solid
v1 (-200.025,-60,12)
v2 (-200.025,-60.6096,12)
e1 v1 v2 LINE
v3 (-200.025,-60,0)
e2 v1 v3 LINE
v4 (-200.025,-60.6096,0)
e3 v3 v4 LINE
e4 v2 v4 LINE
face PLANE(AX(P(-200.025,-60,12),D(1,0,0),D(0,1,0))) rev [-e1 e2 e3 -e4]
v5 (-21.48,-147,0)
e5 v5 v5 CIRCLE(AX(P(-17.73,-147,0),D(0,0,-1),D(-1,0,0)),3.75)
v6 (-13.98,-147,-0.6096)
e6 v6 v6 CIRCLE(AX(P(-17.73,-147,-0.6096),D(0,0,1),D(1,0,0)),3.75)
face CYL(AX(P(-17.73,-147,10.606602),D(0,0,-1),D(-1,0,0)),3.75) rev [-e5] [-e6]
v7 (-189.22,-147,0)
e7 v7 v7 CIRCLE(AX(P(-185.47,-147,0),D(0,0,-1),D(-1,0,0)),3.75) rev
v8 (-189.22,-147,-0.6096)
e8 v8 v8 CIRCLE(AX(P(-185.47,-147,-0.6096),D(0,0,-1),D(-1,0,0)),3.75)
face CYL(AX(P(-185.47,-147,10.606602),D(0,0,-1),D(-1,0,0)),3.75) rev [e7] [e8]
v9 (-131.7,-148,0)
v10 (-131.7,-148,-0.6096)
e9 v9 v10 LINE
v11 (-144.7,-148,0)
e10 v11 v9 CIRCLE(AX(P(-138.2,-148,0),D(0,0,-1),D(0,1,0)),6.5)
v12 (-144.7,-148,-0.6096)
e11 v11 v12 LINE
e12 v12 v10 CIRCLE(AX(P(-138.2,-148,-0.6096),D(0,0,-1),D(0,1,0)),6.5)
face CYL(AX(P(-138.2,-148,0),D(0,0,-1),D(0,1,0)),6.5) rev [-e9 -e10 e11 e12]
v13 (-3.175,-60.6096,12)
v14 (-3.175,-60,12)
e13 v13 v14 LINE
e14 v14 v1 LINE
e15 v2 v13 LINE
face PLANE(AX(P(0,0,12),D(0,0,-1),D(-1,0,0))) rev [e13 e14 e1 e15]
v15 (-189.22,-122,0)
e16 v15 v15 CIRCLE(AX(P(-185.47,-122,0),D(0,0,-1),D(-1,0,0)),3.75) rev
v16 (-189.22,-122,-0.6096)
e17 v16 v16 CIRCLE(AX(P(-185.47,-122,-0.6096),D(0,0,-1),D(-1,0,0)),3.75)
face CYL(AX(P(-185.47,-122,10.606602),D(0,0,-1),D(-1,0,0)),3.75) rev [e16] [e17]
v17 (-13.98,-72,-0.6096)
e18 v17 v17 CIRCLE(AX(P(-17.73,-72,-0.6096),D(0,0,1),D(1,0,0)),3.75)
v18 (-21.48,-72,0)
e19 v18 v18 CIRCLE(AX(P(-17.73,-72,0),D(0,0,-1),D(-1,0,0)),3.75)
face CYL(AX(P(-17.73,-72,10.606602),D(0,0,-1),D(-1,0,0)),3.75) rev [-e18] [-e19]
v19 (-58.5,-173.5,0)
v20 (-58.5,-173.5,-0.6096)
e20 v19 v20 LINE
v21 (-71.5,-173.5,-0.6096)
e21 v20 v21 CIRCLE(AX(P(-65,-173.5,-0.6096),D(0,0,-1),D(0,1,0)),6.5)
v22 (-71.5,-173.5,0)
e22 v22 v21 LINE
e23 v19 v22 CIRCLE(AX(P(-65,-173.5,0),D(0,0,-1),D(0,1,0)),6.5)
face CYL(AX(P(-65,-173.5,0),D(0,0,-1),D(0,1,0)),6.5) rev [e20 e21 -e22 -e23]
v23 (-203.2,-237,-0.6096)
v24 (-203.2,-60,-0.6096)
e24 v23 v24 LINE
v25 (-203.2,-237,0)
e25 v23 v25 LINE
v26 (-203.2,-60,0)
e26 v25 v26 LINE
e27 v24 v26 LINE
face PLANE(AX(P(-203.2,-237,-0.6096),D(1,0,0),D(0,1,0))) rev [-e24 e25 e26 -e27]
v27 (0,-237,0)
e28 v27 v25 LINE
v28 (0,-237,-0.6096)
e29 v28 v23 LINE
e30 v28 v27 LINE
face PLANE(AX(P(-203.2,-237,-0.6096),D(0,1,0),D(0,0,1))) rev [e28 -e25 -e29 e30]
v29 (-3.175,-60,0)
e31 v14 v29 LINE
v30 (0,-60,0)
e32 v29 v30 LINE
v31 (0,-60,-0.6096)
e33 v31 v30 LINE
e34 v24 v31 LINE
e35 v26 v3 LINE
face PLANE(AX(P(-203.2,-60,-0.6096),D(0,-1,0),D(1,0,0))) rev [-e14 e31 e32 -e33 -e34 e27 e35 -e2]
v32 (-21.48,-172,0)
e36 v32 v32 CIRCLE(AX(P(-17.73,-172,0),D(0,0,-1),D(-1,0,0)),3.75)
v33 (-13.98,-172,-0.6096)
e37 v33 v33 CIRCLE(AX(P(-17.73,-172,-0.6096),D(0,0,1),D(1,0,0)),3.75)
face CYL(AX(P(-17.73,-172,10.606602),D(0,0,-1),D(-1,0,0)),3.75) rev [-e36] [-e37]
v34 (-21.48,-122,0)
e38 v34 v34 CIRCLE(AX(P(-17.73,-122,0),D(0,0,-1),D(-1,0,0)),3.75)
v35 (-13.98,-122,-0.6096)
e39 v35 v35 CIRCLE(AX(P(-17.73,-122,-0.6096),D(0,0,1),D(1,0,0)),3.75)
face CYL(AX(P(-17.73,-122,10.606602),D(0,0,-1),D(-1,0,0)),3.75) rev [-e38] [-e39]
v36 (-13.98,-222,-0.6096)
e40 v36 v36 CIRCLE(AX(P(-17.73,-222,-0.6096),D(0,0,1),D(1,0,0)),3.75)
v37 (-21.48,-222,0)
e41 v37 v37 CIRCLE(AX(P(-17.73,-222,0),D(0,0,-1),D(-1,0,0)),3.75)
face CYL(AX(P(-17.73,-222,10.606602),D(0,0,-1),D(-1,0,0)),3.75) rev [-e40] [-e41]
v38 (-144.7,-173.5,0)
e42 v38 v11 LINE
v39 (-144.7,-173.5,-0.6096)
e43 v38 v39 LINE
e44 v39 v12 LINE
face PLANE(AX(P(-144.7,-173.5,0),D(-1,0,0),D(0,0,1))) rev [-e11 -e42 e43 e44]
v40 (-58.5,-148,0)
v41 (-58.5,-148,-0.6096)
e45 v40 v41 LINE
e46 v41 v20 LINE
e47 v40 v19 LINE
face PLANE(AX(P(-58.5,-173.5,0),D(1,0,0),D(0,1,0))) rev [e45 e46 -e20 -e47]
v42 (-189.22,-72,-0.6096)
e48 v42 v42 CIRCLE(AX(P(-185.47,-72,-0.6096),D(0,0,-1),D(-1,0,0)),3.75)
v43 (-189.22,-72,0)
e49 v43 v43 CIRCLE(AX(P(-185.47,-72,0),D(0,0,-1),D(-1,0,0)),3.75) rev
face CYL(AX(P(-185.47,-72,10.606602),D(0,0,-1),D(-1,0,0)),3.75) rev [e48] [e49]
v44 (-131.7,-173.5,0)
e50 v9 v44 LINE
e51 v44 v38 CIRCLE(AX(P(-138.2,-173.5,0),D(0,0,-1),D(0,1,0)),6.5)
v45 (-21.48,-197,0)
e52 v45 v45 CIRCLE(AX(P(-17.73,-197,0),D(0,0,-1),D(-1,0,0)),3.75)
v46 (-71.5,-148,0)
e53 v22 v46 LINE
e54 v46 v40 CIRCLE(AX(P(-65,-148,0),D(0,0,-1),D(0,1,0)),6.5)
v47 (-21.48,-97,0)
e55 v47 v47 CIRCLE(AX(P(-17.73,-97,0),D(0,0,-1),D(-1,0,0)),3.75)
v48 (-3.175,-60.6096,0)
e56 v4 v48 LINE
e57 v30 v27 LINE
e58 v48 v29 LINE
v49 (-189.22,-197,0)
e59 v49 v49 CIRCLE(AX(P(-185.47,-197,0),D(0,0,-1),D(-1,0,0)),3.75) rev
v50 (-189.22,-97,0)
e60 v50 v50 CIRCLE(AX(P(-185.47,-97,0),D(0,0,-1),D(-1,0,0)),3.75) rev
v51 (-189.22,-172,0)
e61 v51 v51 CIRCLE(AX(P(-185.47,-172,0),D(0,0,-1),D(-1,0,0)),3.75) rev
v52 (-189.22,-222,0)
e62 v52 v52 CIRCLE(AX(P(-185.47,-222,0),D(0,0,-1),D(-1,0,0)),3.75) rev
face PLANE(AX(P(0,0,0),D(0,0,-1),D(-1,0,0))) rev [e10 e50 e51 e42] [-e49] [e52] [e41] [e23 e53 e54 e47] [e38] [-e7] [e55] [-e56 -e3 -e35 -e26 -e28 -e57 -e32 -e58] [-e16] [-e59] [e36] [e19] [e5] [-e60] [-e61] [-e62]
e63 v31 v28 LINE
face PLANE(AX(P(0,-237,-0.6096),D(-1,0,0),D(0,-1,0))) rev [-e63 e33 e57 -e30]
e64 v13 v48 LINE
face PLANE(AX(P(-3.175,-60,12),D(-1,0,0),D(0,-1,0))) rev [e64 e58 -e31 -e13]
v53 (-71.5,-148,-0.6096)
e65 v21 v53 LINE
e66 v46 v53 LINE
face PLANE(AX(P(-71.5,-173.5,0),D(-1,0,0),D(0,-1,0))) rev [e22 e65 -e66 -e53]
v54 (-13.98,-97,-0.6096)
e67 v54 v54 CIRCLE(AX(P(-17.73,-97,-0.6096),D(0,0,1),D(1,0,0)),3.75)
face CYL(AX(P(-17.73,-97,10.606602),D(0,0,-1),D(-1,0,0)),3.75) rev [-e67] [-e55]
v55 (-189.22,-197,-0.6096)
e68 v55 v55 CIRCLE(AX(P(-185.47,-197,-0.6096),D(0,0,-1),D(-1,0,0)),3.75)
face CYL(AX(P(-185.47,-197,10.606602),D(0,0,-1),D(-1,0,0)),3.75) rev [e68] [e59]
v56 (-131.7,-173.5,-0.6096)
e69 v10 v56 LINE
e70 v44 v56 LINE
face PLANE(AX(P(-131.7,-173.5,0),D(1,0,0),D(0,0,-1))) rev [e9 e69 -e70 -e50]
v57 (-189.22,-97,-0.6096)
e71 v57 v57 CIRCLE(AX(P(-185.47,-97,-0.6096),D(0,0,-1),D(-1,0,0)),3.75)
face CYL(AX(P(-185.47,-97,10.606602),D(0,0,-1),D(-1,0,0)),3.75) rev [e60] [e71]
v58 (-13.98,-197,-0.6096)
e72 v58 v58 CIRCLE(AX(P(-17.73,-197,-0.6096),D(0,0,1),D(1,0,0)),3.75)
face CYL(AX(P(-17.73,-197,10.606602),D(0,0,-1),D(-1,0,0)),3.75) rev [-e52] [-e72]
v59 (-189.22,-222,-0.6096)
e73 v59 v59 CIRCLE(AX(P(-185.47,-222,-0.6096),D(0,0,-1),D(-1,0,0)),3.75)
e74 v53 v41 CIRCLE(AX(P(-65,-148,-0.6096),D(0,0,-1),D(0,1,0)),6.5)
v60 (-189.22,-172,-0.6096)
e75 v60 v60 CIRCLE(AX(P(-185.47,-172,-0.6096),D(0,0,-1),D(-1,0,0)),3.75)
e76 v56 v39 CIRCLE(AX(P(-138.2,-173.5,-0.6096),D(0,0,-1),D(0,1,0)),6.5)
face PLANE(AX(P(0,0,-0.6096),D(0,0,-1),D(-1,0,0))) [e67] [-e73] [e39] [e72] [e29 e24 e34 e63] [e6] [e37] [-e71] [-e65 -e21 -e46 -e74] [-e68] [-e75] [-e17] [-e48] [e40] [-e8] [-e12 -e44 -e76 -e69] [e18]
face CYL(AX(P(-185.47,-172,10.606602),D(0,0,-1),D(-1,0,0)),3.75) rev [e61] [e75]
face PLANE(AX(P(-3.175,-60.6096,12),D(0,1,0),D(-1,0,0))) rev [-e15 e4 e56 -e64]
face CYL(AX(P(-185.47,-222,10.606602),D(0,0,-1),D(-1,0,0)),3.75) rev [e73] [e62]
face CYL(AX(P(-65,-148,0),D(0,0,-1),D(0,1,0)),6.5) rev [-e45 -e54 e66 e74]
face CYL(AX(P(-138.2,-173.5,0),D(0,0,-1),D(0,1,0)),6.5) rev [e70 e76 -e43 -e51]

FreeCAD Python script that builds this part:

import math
import FreeCAD as App
import Part
import Sketcher

V = App.Vector

doc = App.newDocument("Part")
body = doc.addObject("PartDesign::Body", "Body")

sketch1 = body.newObject("Sketcher::SketchObject", "Sketch")
sketch1.AttachmentSupport = (doc.getObject("XY_Plane"), [""])
sketch1.MapMode = "FlatFace"
sketch1.addGeometry([
    Part.LineSegment(V(-203, -237, 0), V(-203, -60, 0)),
    Part.LineSegment(V(-203, -60, 0), V(0, -60, 0)),
    Part.LineSegment(V(0, -60, 0), V(0, -237, 0)),
    Part.LineSegment(V(0, -237, 0), V(-203, -237, 0)),
], False)
sketch1.addConstraint([
    Sketcher.Constraint("Coincident", 0, 2, 1, 1),
    Sketcher.Constraint("Coincident", 1, 2, 2, 1),
    Sketcher.Constraint("Coincident", 2, 2, 3, 1),
    Sketcher.Constraint("Coincident", 3, 2, 0, 1),
    Sketcher.Constraint("Vertical", 0),
    Sketcher.Constraint("Horizontal", 1),
    Sketcher.Constraint("Vertical", 2),
    Sketcher.Constraint("Horizontal", 3),
    Sketcher.Constraint("PointOnObject", 1, 2, -2),
    Sketcher.Constraint("DistanceY", 0, 1, 0, 2, 177.0),
    Sketcher.Constraint("DistanceX", 1, 1, 1, 2, 203.2),
    Sketcher.Constraint("DistanceY", 0, 2, -1, 1, 60.0),
])
pad1 = body.newObject("PartDesign::Pad", "Pad")
pad1.Profile = sketch1
pad1.Length = 0.6096
pad1.Reversed = True

sketch2 = body.newObject("Sketcher::SketchObject", "Sketch001")
sketch2.AttachmentSupport = (doc.getObject("XY_Plane"), [""])
sketch2.MapMode = "FlatFace"
sketch2.AttachmentOffset = App.Placement(V(0, 0, -0.6096), App.Rotation())
sketch2.addGeometry([
    Part.LineSegment(V(-132, -148, 0), V(-132, -174, 0)),
    Part.ArcOfCircle(Part.Circle(V(-138, -174, 0), V(0, 0, 1), 6), math.radians(180), math.radians(360)),
    Part.LineSegment(V(-145, -174, 0), V(-145, -148, 0)),
    Part.ArcOfCircle(Part.Circle(V(-138, -148, 0), V(0, 0, 1), 6), math.radians(0), math.radians(180)),
    Part.LineSegment(V(-58, -148, 0), V(-58, -174, 0)),
    Part.ArcOfCircle(Part.Circle(V(-65, -174, 0), V(0, 0, 1), 6), math.radians(180), math.radians(360)),
    Part.LineSegment(V(-72, -174, 0), V(-72, -148, 0)),
    Part.ArcOfCircle(Part.Circle(V(-65, -148, 0), V(0, 0, 1), 6), math.radians(0), math.radians(180)),
], False)
sketch2.addConstraint([
    Sketcher.Constraint("Tangent", 0, 2, 1, 2),
    Sketcher.Constraint("Tangent", 1, 1, 2, 1),
    Sketcher.Constraint("Tangent", 2, 2, 3, 2),
    Sketcher.Constraint("Tangent", 3, 1, 0, 1),
    Sketcher.Constraint("Tangent", 4, 2, 5, 2),
    Sketcher.Constraint("Tangent", 5, 1, 6, 1),
    Sketcher.Constraint("Tangent", 6, 2, 7, 2),
    Sketcher.Constraint("Tangent", 7, 1, 4, 1),
    Sketcher.Constraint("Vertical", 0),
    Sketcher.Constraint("Vertical", 2),
    Sketcher.Constraint("Vertical", 4),
    Sketcher.Constraint("Vertical", 6),
    Sketcher.Constraint("Equal", 3, 5),
    Sketcher.Constraint("Horizontal", 1, 3, 5, 3),
    Sketcher.Constraint("Horizontal", 3, 3, 7, 3),
    Sketcher.Constraint("Radius", 1, 6.5),
    Sketcher.Constraint("DistanceY", 0, 2, 0, 1, 25.5),
    Sketcher.Constraint("DistanceY", 3, 3, -1, 1, 148.0),
    Sketcher.Constraint("DistanceX", 5, 3, -1, 1, 65.0),
    Sketcher.Constraint("DistanceX", 1, 3, -1, 1, 138.2),
])
pocket1 = body.newObject("PartDesign::Pocket", "Pocket")
pocket1.Profile = sketch2
pocket1.Type = "ThroughAll"
pocket1.Reversed = True

sketch3 = body.newObject("Sketcher::SketchObject", "Sketch002")
sketch3.AttachmentSupport = (doc.getObject("XY_Plane"), [""])
sketch3.MapMode = "FlatFace"
sketch3.addGeometry([
    Part.LineSegment(V(-200, -60, 0), V(-200, -60.6, 0)),
    Part.LineSegment(V(-200, -60.6, 0), V(-3.2, -60.6, 0)),
    Part.LineSegment(V(-3.2, -60.6, 0), V(-3.2, -60, 0)),
    Part.LineSegment(V(-3.2, -60, 0), V(-200, -60, 0)),
], False)
sketch3.addConstraint([
    Sketcher.Constraint("Coincident", 0, 2, 1, 1),
    Sketcher.Constraint("Coincident", 1, 2, 2, 1),
    Sketcher.Constraint("Coincident", 2, 2, 3, 1),
    Sketcher.Constraint("Coincident", 3, 2, 0, 1),
    Sketcher.Constraint("Vertical", 0),
    Sketcher.Constraint("Horizontal", 1),
    Sketcher.Constraint("Vertical", 2),
    Sketcher.Constraint("Horizontal", 3),
    Sketcher.Constraint("DistanceY", 2, 2, -1, 1, 60.0),
    Sketcher.Constraint("DistanceX", 1, 1, 1, 2, 196.85),
    Sketcher.Constraint("DistanceY", 0, 2, 0, 1, 0.6096),
    Sketcher.Constraint("DistanceX", 0, 2, -1, 1, 200.025),
])
pad2 = body.newObject("PartDesign::Pad", "Pad001")
pad2.Profile = sketch3
pad2.Length = 12

sketch4 = body.newObject("Sketcher::SketchObject", "Sketch003")
sketch4.AttachmentSupport = (doc.getObject("XY_Plane"), [""])
sketch4.MapMode = "FlatFace"
sketch4.AttachmentOffset = App.Placement(V(0, 0, -0.6096), App.Rotation())
sketch4.addGeometry([
    Part.Circle(V(-185.5, -222, 0), V(0, 0, 1), 3.8),
    Part.Circle(V(-185.5, -197, 0), V(0, 0, 1), 3.8),
    Part.Circle(V(-185.5, -172, 0), V(0, 0, 1), 3.8),
    Part.Circle(V(-185.5, -147, 0), V(0, 0, 1), 3.8),
    Part.Circle(V(-185.5, -122, 0), V(0, 0, 1), 3.8),
    Part.Circle(V(-185.5, -97, 0), V(0, 0, 1), 3.8),
    Part.Circle(V(-185.5, -72, 0), V(0, 0, 1), 3.8),
], False)
sketch4.addConstraint([
    Sketcher.Constraint("Equal", 0, 1),
    Sketcher.Constraint("Equal", 1, 2),
    Sketcher.Constraint("Equal", 2, 3),
    Sketcher.Constraint("Equal", 3, 4),
    Sketcher.Constraint("Equal", 4, 5),
    Sketcher.Constraint("Equal", 5, 6),
    Sketcher.Constraint("Vertical", 0, 3, 1, 3),
    Sketcher.Constraint("Vertical", 1, 3, 2, 3),
    Sketcher.Constraint("Vertical", 2, 3, 3, 3),
    Sketcher.Constraint("Vertical", 3, 3, 4, 3),
    Sketcher.Constraint("Vertical", 4, 3, 5, 3),
    Sketcher.Constraint("Vertical", 5, 3, 6, 3),
    Sketcher.Constraint("Diameter", 0, 7.5),
    Sketcher.Constraint("DistanceY", 0, 3, -1, 1, 222.0),
    Sketcher.Constraint("DistanceY", 1, 3, -1, 1, 197.0),
    Sketcher.Constraint("DistanceY", 2, 3, -1, 1, 172.0),
    Sketcher.Constraint("DistanceY", 3, 3, -1, 1, 147.0),
    Sketcher.Constraint("DistanceY", 4, 3, -1, 1, 122.0),
    Sketcher.Constraint("DistanceY", 5, 3, -1, 1, 97.0),
    Sketcher.Constraint("DistanceY", 6, 3, -1, 1, 72.0),
    Sketcher.Constraint("DistanceX", 0, 3, -1, 1, 185.47),
])
pocket2 = body.newObject("PartDesign::Pocket", "Pocket001")
pocket2.Profile = sketch4
pocket2.Length = 0.6096
pocket2.Reversed = True
doc.recompute()

datumplane = body.newObject("PartDesign::Plane", "DatumPlane")
datumplane.AttachmentSupport = (doc.getObject("YZ_Plane"), [""])
datumplane.MapMode = "FlatFace"
datumplane.AttachmentOffset = App.Placement(V(0, 0, -101.6), App.Rotation())
mirrored = body.newObject("PartDesign::Mirrored", "Mirrored")
mirrored.Originals = [pocket2]
mirrored.MirrorPlane = (datumplane, [""])
body.Tip = mirrored

doc.recompute()
